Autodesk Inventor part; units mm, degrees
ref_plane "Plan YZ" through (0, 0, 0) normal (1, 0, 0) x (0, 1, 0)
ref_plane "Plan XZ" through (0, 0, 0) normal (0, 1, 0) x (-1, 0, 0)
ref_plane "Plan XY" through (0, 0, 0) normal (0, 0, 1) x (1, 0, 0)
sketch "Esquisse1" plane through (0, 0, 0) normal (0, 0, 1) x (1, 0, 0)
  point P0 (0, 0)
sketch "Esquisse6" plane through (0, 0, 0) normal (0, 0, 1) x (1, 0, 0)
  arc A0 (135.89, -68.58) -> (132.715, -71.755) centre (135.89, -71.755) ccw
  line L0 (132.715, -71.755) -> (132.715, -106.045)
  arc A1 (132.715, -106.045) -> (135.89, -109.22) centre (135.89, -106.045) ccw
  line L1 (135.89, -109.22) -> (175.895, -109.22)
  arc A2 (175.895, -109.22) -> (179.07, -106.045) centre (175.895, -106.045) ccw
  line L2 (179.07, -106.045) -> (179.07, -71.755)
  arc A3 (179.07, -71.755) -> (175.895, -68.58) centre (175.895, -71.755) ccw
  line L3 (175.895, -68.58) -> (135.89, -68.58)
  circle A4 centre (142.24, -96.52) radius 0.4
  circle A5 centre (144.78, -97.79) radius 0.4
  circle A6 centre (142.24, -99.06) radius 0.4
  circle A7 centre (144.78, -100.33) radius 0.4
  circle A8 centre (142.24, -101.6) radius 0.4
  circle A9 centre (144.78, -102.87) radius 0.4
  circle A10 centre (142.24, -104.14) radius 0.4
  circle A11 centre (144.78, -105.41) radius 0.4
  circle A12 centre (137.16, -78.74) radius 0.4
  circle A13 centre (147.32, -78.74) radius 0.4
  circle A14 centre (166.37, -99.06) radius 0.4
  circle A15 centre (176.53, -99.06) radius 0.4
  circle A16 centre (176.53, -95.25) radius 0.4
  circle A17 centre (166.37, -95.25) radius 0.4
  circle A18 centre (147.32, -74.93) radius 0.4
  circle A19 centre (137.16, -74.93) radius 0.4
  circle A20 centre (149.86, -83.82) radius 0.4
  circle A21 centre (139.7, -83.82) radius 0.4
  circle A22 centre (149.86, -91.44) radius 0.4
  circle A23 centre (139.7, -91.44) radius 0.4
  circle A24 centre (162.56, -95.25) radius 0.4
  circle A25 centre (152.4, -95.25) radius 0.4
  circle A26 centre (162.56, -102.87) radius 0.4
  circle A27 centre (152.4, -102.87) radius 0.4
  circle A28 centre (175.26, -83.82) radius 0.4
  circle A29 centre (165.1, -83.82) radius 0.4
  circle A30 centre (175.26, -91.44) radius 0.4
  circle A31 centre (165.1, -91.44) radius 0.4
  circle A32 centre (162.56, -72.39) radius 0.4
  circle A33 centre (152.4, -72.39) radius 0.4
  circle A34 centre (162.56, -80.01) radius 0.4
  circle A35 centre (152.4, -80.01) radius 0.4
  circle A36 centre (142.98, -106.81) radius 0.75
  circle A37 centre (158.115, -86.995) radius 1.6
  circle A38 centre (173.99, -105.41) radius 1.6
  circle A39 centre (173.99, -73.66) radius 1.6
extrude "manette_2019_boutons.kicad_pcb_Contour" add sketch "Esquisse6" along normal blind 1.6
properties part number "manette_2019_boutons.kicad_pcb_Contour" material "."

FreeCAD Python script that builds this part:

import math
import FreeCAD as App
import Part
import Sketcher
Q = App.Units.Quantity

doc = App.newDocument("Part")
body = doc.addObject("PartDesign::Body", "Body")

# Sketch on XY plane
sketch1 = doc.addObject("Sketcher::SketchObject", "Sketch")
body.addObject(sketch1)
sketch1.AttachmentSupport = (doc.XY_Plane, [""])
sketch1.MapMode = "FlatFace"
sketch1.addGeometry([
    Part.LineSegment(App.Vector(175.895, -68.58, 0), App.Vector(135.89, -68.58, 0)),  # 0
    Part.ArcOfCircle(Part.Circle(App.Vector(135.89, -71.755, 0), App.Vector(0, 0, 1), 3.175), math.radians(90), math.radians(180)),  # 1
    Part.LineSegment(App.Vector(132.715, -71.755, 0), App.Vector(132.715, -106.045, 0)),  # 2
    Part.ArcOfCircle(Part.Circle(App.Vector(135.89, -106.045, 0), App.Vector(0, 0, 1), 3.175), math.radians(180), math.radians(270)),  # 3
    Part.LineSegment(App.Vector(135.89, -109.22, 0), App.Vector(175.895, -109.22, 0)),  # 4
    Part.ArcOfCircle(Part.Circle(App.Vector(175.895, -106.045, 0), App.Vector(0, 0, 1), 3.175), math.radians(-90), math.radians(0)),  # 5
    Part.LineSegment(App.Vector(179.07, -106.045, 0), App.Vector(179.07, -71.755, 0)),  # 6
    Part.ArcOfCircle(Part.Circle(App.Vector(175.895, -71.755, 0), App.Vector(0, 0, 1), 3.175), math.radians(0), math.radians(90)),  # 7
    Part.Circle(App.Vector(142.98, -106.81, 0), App.Vector(0, 0, 1), 0.75),  # 8
    Part.Circle(App.Vector(142.24, -104.14, 0), App.Vector(0, 0, 1), 0.4),  # 9
    Part.Circle(App.Vector(142.24, -101.6, 0), App.Vector(0, 0, 1), 0.4),  # 10
    Part.Circle(App.Vector(144.78, -105.41, 0), App.Vector(0, 0, 1), 0.4),  # 11
    Part.Circle(App.Vector(144.78, -102.87, 0), App.Vector(0, 0, 1), 0.4),  # 12
    Part.Circle(App.Vector(144.78, -100.33, 0), App.Vector(0, 0, 1), 0.4),  # 13
    Part.Circle(App.Vector(152.4, -102.87, 0), App.Vector(0, 0, 1), 0.4),  # 14
    Part.Circle(App.Vector(142.24, -99.06, 0), App.Vector(0, 0, 1), 0.4),  # 15
    Part.Circle(App.Vector(142.24, -96.52, 0), App.Vector(0, 0, 1), 0.4),  # 16
    Part.Circle(App.Vector(139.7, -91.44, 0), App.Vector(0, 0, 1), 0.4),  # 17
    Part.Circle(App.Vector(144.78, -97.79, 0), App.Vector(0, 0, 1), 0.4),  # 18
    Part.Circle(App.Vector(152.4, -95.25, 0), App.Vector(0, 0, 1), 0.4),  # 19
    Part.Circle(App.Vector(149.86, -91.44, 0), App.Vector(0, 0, 1), 0.4),  # 20
    Part.Circle(App.Vector(162.56, -102.87, 0), App.Vector(0, 0, 1), 0.4),  # 21
    Part.Circle(App.Vector(173.99, -105.41, 0), App.Vector(0, 0, 1), 1.6),  # 22
    Part.Circle(App.Vector(166.37, -99.06, 0), App.Vector(0, 0, 1), 0.4),  # 23
    Part.Circle(App.Vector(162.56, -95.25, 0), App.Vector(0, 0, 1), 0.4),  # 24
    Part.Circle(App.Vector(166.37, -95.25, 0), App.Vector(0, 0, 1), 0.4),  # 25
    Part.Circle(App.Vector(165.1, -91.44, 0), App.Vector(0, 0, 1), 0.4),  # 26
    Part.Circle(App.Vector(176.53, -99.06, 0), App.Vector(0, 0, 1), 0.4),  # 27
    Part.Circle(App.Vector(176.53, -95.25, 0), App.Vector(0, 0, 1), 0.4),  # 28
    Part.Circle(App.Vector(175.26, -91.44, 0), App.Vector(0, 0, 1), 0.4),  # 29
    Part.Circle(App.Vector(139.7, -83.82, 0), App.Vector(0, 0, 1), 0.4),  # 30
    Part.Circle(App.Vector(149.86, -83.82, 0), App.Vector(0, 0, 1), 0.4),  # 31
    Part.Circle(App.Vector(152.4, -80.01, 0), App.Vector(0, 0, 1), 0.4),  # 32
    Part.Circle(App.Vector(137.16, -78.74, 0), App.Vector(0, 0, 1), 0.4),  # 33
    Part.Circle(App.Vector(137.16, -74.93, 0), App.Vector(0, 0, 1), 0.4),  # 34
    Part.Circle(App.Vector(147.32, -78.74, 0), App.Vector(0, 0, 1), 0.4),  # 35
    Part.Circle(App.Vector(147.32, -74.93, 0), App.Vector(0, 0, 1), 0.4),  # 36
    Part.Circle(App.Vector(152.4, -72.39, 0), App.Vector(0, 0, 1), 0.4),  # 37
    Part.Circle(App.Vector(158.115, -86.995, 0), App.Vector(0, 0, 1), 1.6),  # 38
    Part.Circle(App.Vector(165.1, -83.82, 0), App.Vector(0, 0, 1), 0.4),  # 39
    Part.Circle(App.Vector(162.56, -80.01, 0), App.Vector(0, 0, 1), 0.4),  # 40
    Part.Circle(App.Vector(175.26, -83.82, 0), App.Vector(0, 0, 1), 0.4),  # 41
    Part.Circle(App.Vector(162.56, -72.39, 0), App.Vector(0, 0, 1), 0.4),  # 42
    Part.Circle(App.Vector(173.99, -73.66, 0), App.Vector(0, 0, 1), 1.6),  # 43
], False)
sketch1.addConstraint([
    Sketcher.Constraint("Tangent", 0, 2, 1, 1),
    Sketcher.Constraint("Tangent", 1, 2, 2, 1),
    Sketcher.Constraint("Tangent", 2, 2, 3, 1),
    Sketcher.Constraint("Tangent", 3, 2, 4, 1),
    Sketcher.Constraint("Tangent", 4, 2, 5, 1),
    Sketcher.Constraint("Tangent", 5, 2, 6, 1),
    Sketcher.Constraint("Tangent", 6, 2, 7, 1),
    Sketcher.Constraint("Tangent", 7, 2, 0, 1),
    Sketcher.Constraint("Horizontal", 0),
    Sketcher.Constraint("Vertical", 2),
    Sketcher.Constraint("Horizontal", 4),
    Sketcher.Constraint("Vertical", 6),
    Sketcher.Constraint("Equal", 1, 3),
    Sketcher.Constraint("Equal", 3, 5),
    Sketcher.Constraint("Equal", 5, 7),
    Sketcher.Constraint("Equal", 9, 10),
    Sketcher.Constraint("Equal", 10, 11),
    Sketcher.Constraint("Equal", 11, 12),
    Sketcher.Constraint("Equal", 12, 13),
    Sketcher.Constraint("Equal", 13, 14),
    Sketcher.Constraint("Equal", 14, 15),
    Sketcher.Constraint("Equal", 15, 16),
    Sketcher.Constraint("Equal", 16, 17),
    Sketcher.Constraint("Equal", 17, 18),
    Sketcher.Constraint("Equal", 18, 19),
    Sketcher.Constraint("Equal", 19, 20),
    Sketcher.Constraint("Equal", 20, 21),
    Sketcher.Constraint("Equal", 21, 23),
    Sketcher.Constraint("Equal", 23, 24),
    Sketcher.Constraint("Equal", 24, 25),
    Sketcher.Constraint("Equal", 25, 26),
    Sketcher.Constraint("Equal", 26, 27),
    Sketcher.Constraint("Equal", 27, 28),
    Sketcher.Constraint("Equal", 28, 29),
    Sketcher.Constraint("Equal", 29, 30),
    Sketcher.Constraint("Equal", 30, 31),
    Sketcher.Constraint("Equal", 31, 32),
    Sketcher.Constraint("Equal", 32, 33),
    Sketcher.Constraint("Equal", 33, 34),
    Sketcher.Constraint("Equal", 34, 35),
    Sketcher.Constraint("Equal", 35, 36),
    Sketcher.Constraint("Equal", 36, 37),
    Sketcher.Constraint("Equal", 22, 38),
    Sketcher.Constraint("Equal", 37, 39),
    Sketcher.Constraint("Equal", 39, 40),
    Sketcher.Constraint("Equal", 40, 41),
    Sketcher.Constraint("Equal", 41, 42),
    Sketcher.Constraint("Equal", 38, 43),
    Sketcher.Constraint("Horizontal", 12, 3, 14, 3),
    Sketcher.Constraint("Horizontal", 17, 3, 20, 3),
    Sketcher.Constraint("Horizontal", 14, 3, 21, 3),
    Sketcher.Constraint("Horizontal", 11, 3, 22, 3),
    Sketcher.Constraint("Horizontal", 15, 3, 23, 3),
    Sketcher.Constraint("Horizontal", 19, 3, 24, 3),
    Sketcher.Constraint("Horizontal", 24, 3, 25, 3),
    Sketcher.Constraint("Horizontal", 20, 3, 26, 3),
    Sketcher.Constraint("Horizontal", 23, 3, 27, 3),
    Sketcher.Constraint("Horizontal", 25, 3, 28, 3),
    Sketcher.Constraint("Horizontal", 26, 3, 29, 3),
    Sketcher.Constraint("Horizontal", 30, 3, 31, 3),
    Sketcher.Constraint("Horizontal", 33, 3, 35, 3),
    Sketcher.Constraint("Horizontal", 34, 3, 36, 3),
    Sketcher.Constraint("Horizontal", 31, 3, 39, 3),
    Sketcher.Constraint("Horizontal", 32, 3, 40, 3),
    Sketcher.Constraint("Horizontal", 39, 3, 41, 3),
    Sketcher.Constraint("Horizontal", 37, 3, 42, 3),
    Sketcher.Constraint("Vertical", 9, 3, 10, 3),
    Sketcher.Constraint("Vertical", 11, 3, 12, 3),
    Sketcher.Constraint("Vertical", 12, 3, 13, 3),
    Sketcher.Constraint("Vertical", 10, 3, 15, 3),
    Sketcher.Constraint("Vertical", 15, 3, 16, 3),
    Sketcher.Constraint("Vertical", 13, 3, 18, 3),
    Sketcher.Constraint("Vertical", 14, 3, 19, 3),
    Sketcher.Constraint("Vertical", 21, 3, 24, 3),
    Sketcher.Constraint("Vertical", 23, 3, 25, 3),
    Sketcher.Constraint("Vertical", 27, 3, 28, 3),
    Sketcher.Constraint("Vertical", 17, 3, 30, 3),
    Sketcher.Constraint("Vertical", 20, 3, 31, 3),
    Sketcher.Constraint("Vertical", 19, 3, 32, 3),
    Sketcher.Constraint("Vertical", 33, 3, 34, 3),
    Sketcher.Constraint("Vertical", 35, 3, 36, 3),
    Sketcher.Constraint("Vertical", 32, 3, 37, 3),
    Sketcher.Constraint("Vertical", 26, 3, 39, 3),
    Sketcher.Constraint("Vertical", 24, 3, 40, 3),
    Sketcher.Constraint("Vertical", 29, 3, 41, 3),
    Sketcher.Constraint("Vertical", 40, 3, 42, 3),
    Sketcher.Constraint("Vertical", 22, 3, 43, 3),
    Sketcher.Constraint("DistanceY", 10, 3, -1, 1, Q("4 in")),
    Sketcher.Constraint("DistanceX", -1, 1, 14, 3, Q("6 in")),
    Sketcher.Constraint("Radius", 1, Q("0.125 in")),
    Sketcher.Constraint("Diameter", 9, Q("0.0315 in")),
    Sketcher.Constraint("DistanceY", 2, 2, 2, 1, Q("1.35 in")),
    Sketcher.Constraint("DistanceX", -1, 1, 9, 3, Q("5.6 in")),
    Sketcher.Constraint("DistanceY", 9, 3, -1, 1, Q("4.1 in")),
    Sketcher.Constraint("DistanceX", -1, 1, 11, 3, Q("5.7 in")),
    Sketcher.Constraint("DistanceY", 15, 3, -1, 1, Q("3.9 in")),
    Sketcher.Constraint("DistanceY", 16, 3, -1, 1, Q("3.8 in")),
    Sketcher.Constraint("DistanceX", -1, 1, 17, 3, Q("5.5 in")),
    Sketcher.Constraint("DistanceY", 17, 3, -1, 1, Q("3.6 in")),
    Sketcher.Constraint("DistanceX", -1, 1, 20, 3, Q("5.9 in")),
    Sketcher.Constraint("DistanceX", -1, 1, 21, 3, Q("6.4 in")),
    Sketcher.Constraint("DistanceX", -1, 1, 26, 3, Q("6.5 in")),
    Sketcher.Constraint("DistanceX", -1, 1, 29, 3, Q("6.9 in")),
    Sketcher.Constraint("DistanceY", 30, 3, -1, 1, Q("3.3 in")),
    Sketcher.Constraint("DistanceX", -1, 1, 33, 3, Q("5.4 in")),
    Sketcher.Constraint("DistanceY", 33, 3, -1, 1, Q("3.1 in")),
    Sketcher.Constraint("DistanceX", -1, 1, 35, 3, Q("5.8 in")),
    Sketcher.Constraint("DistanceY", 43, 3, -1, 1, Q("2.9 in")),
    Sketcher.Constraint("DistanceY", 0, 2, -1, 1, Q("2.7 in")),
    Sketcher.Constraint("DistanceY", 11, 3, 12, 3, Q("0.1 in")),
    Sketcher.Constraint("DistanceY", 12, 3, 13, 3, Q("0.1 in")),
    Sketcher.Constraint("DistanceY", 13, 3, 18, 3, Q("0.1 in")),
    Sketcher.Constraint("DistanceY", 14, 3, 19, 3, Q("0.3 in")),
    Sketcher.Constraint("DistanceX", 23, 3, 22, 3, Q("0.3 in")),
    Sketcher.Constraint("DistanceX", 22, 3, 27, 3, Q("0.1 in")),
    Sketcher.Constraint("DistanceY", 19, 3, 32, 3, Q("0.6 in")),
    Sketcher.Constraint("DistanceY", 32, 3, 34, 3, Q("0.2 in")),
    Sketcher.Constraint("DistanceY", 36, 3, 37, 3, Q("0.1 in")),
    Sketcher.Constraint("DistanceX", 22, 3, 5, 2, Q("0.2 in")),
    Sketcher.Constraint("Diameter", 8, Q("1.5 mm")),
    Sketcher.Constraint("Diameter", 22, Q("3.2 mm")),
    Sketcher.Constraint("DistanceX", 0, 2, 0, 1, Q("1.575 in")),
    Sketcher.Constraint("DistanceX", -1, 1, 1, 3, Q("5.35 in")),
    Sketcher.Constraint("DistanceY", 11, 3, -1, 1, Q("4.15 in")),
    Sketcher.Constraint("DistanceX", -1, 1, 38, 3, Q("6.225 in")),
    Sketcher.Constraint("DistanceY", 38, 3, -1, 1, Q("3.425 in")),
    Sketcher.Constraint("DistanceX", -1, 1, 8, 3, Q("142.98 mm")),
    Sketcher.Constraint("DistanceY", 8, 3, -1, 1, Q("106.81 mm")),
])
pad1 = doc.addObject("PartDesign::Pad", "Pad")
body.addObject(pad1)
pad1.Profile = sketch1
pad1.Length = Q("0.0629921 in")

doc.recompute()
